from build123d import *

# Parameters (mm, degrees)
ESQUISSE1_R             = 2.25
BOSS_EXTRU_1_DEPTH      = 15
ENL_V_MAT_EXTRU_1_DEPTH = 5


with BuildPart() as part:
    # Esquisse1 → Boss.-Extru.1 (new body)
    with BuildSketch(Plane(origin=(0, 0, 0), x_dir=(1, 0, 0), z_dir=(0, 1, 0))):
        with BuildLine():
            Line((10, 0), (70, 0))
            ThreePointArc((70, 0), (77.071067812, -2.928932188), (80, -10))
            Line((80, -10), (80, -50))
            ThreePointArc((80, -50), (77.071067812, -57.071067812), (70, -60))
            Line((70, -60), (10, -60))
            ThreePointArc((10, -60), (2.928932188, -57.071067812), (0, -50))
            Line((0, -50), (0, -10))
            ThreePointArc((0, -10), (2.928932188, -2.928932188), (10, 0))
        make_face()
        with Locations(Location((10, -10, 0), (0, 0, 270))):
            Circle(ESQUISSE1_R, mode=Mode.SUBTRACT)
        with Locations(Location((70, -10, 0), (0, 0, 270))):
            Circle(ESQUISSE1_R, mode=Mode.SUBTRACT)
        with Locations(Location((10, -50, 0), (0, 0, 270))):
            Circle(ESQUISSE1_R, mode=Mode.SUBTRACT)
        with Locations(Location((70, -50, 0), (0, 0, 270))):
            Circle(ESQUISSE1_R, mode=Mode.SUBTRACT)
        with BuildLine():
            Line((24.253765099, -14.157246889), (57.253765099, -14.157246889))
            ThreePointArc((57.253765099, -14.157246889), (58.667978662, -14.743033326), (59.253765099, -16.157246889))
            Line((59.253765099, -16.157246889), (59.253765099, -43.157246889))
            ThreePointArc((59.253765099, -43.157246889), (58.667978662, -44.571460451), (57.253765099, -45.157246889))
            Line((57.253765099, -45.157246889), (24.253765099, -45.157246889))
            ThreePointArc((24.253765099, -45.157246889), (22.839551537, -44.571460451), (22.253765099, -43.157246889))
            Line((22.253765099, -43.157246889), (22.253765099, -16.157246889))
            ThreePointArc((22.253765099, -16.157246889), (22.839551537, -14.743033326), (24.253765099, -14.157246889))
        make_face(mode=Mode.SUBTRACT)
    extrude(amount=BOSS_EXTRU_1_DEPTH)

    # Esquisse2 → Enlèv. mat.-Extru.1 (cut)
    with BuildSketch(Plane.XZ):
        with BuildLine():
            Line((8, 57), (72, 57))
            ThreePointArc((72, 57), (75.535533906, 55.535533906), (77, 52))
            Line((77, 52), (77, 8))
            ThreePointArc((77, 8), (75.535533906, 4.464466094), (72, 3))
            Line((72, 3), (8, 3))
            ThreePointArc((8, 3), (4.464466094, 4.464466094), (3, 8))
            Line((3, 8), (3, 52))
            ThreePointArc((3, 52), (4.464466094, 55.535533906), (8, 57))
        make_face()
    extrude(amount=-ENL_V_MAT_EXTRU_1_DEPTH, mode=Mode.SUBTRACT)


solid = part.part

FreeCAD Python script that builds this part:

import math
import FreeCAD as App
import Part
import Sketcher

V = App.Vector
Q = App.Units.Quantity

doc = App.newDocument("Part")
body = doc.addObject("PartDesign::Body", "Body")

# Sketch on XZ plane
sketch1 = body.newObject("Sketcher::SketchObject", "Sketch")
sketch1.AttachmentSupport = (doc.getObject("XZ_Plane"), [""])
sketch1.MapMode = "FlatFace"
sketch1.addGeometry(Part.LineSegment(V(70, 0, 0), V(10, 0, 0)), False)
sketch1.addGeometry(Part.ArcOfCircle(Part.Circle(V(10, 10, 0), V(0, 0, 1), 10), math.radians(180), math.radians(270)), False)
sketch1.addGeometry(Part.LineSegment(V(0, 10, 0), V(0, 50, 0)), False)
sketch1.addGeometry(Part.ArcOfCircle(Part.Circle(V(10, 50, 0), V(0, 0, 1), 10), math.radians(90), math.radians(180)), False)
sketch1.addGeometry(Part.LineSegment(V(10, 60, 0), V(70, 60, 0)), False)
sketch1.addGeometry(Part.ArcOfCircle(Part.Circle(V(70, 50, 0), V(0, 0, 1), 10), math.radians(0), math.radians(90)), False)
sketch1.addGeometry(Part.LineSegment(V(80, 50, 0), V(80, 10, 0)), False)
sketch1.addGeometry(Part.ArcOfCircle(Part.Circle(V(70, 10, 0), V(0, 0, 1), 10), math.radians(-90), math.radians(0)), False)
sketch1.addGeometry(Part.Circle(V(70, 50, 0), V(0, 0, 1), 2.2), False)
sketch1.addGeometry(Part.Circle(V(10, 50, 0), V(0, 0, 1), 2.2), False)
sketch1.addGeometry(Part.LineSegment(V(24.3, 14.2, 0), V(57.3, 14.2, 0)), False)
sketch1.addGeometry(Part.ArcOfCircle(Part.Circle(V(57.3, 16.2, 0), V(0, 0, 1), 2), math.radians(-90), math.radians(0)), False)
sketch1.addGeometry(Part.LineSegment(V(59.3, 16.2, 0), V(59.3, 43.2, 0)), False)
sketch1.addGeometry(Part.ArcOfCircle(Part.Circle(V(57.3, 43.2, 0), V(0, 0, 1), 2), math.radians(0), math.radians(90)), False)
sketch1.addGeometry(Part.LineSegment(V(57.3, 45.2, 0), V(24.3, 45.2, 0)), False)
sketch1.addGeometry(Part.ArcOfCircle(Part.Circle(V(24.3, 43.2, 0), V(0, 0, 1), 2), math.radians(90), math.radians(180)), False)
sketch1.addGeometry(Part.LineSegment(V(22.3, 43.2, 0), V(22.3, 16.2, 0)), False)
sketch1.addGeometry(Part.ArcOfCircle(Part.Circle(V(24.3, 16.2, 0), V(0, 0, 1), 2), math.radians(180), math.radians(270)), False)
sketch1.addGeometry(Part.Circle(V(70, 10, 0), V(0, 0, 1), 2.2), False)
sketch1.addGeometry(Part.Circle(V(10, 10, 0), V(0, 0, 1), 2.2), False)
sketch1.addConstraint(Sketcher.Constraint("Tangent", 0, 2, 1, 2))
sketch1.addConstraint(Sketcher.Constraint("Tangent", 1, 1, 2, 1))
sketch1.addConstraint(Sketcher.Constraint("Tangent", 2, 2, 3, 2))
sketch1.addConstraint(Sketcher.Constraint("Tangent", 3, 1, 4, 1))
sketch1.addConstraint(Sketcher.Constraint("Tangent", 4, 2, 5, 2))
sketch1.addConstraint(Sketcher.Constraint("Tangent", 5, 1, 6, 1))
sketch1.addConstraint(Sketcher.Constraint("Tangent", 6, 2, 7, 2))
sketch1.addConstraint(Sketcher.Constraint("Tangent", 7, 1, 0, 1))
sketch1.addConstraint(Sketcher.Constraint("Tangent", 10, 2, 11, 1))
sketch1.addConstraint(Sketcher.Constraint("Tangent", 11, 2, 12, 1))
sketch1.addConstraint(Sketcher.Constraint("Tangent", 12, 2, 13, 1))
sketch1.addConstraint(Sketcher.Constraint("Tangent", 13, 2, 14, 1))
sketch1.addConstraint(Sketcher.Constraint("Tangent", 14, 2, 15, 1))
sketch1.addConstraint(Sketcher.Constraint("Tangent", 15, 2, 16, 1))
sketch1.addConstraint(Sketcher.Constraint("Tangent", 16, 2, 17, 1))
sketch1.addConstraint(Sketcher.Constraint("Tangent", 17, 2, 10, 1))
sketch1.addConstraint(Sketcher.Constraint("Horizontal", 0))
sketch1.addConstraint(Sketcher.Constraint("Vertical", 2))
sketch1.addConstraint(Sketcher.Constraint("Horizontal", 4))
sketch1.addConstraint(Sketcher.Constraint("Vertical", 6))
sketch1.addConstraint(Sketcher.Constraint("Horizontal", 10))
sketch1.addConstraint(Sketcher.Constraint("Vertical", 12))
sketch1.addConstraint(Sketcher.Constraint("Horizontal", 14))
sketch1.addConstraint(Sketcher.Constraint("Vertical", 16))
sketch1.addConstraint(Sketcher.Constraint("Coincident", 8, 3, 5, 3))
sketch1.addConstraint(Sketcher.Constraint("Coincident", 9, 3, 3, 3))
sketch1.addConstraint(Sketcher.Constraint("Coincident", 18, 3, 7, 3))
sketch1.addConstraint(Sketcher.Constraint("Coincident", 19, 3, 1, 3))
sketch1.addConstraint(Sketcher.Constraint("Equal", 1, 3))
sketch1.addConstraint(Sketcher.Constraint("Equal", 3, 5))
sketch1.addConstraint(Sketcher.Constraint("Equal", 5, 7))
sketch1.addConstraint(Sketcher.Constraint("Equal", 8, 9))
sketch1.addConstraint(Sketcher.Constraint("Equal", 11, 13))
sketch1.addConstraint(Sketcher.Constraint("Equal", 13, 15))
sketch1.addConstraint(Sketcher.Constraint("Equal", 15, 17))
sketch1.addConstraint(Sketcher.Constraint("Equal", 9, 18))
sketch1.addConstraint(Sketcher.Constraint("Equal", 18, 19))
sketch1.addConstraint(Sketcher.Constraint("PointOnObject", 0, 2, -1))
sketch1.addConstraint(Sketcher.Constraint("PointOnObject", 1, 1, -2))
sketch1.addConstraint(Sketcher.Constraint("Radius", 1, Q("10 mm")))
sketch1.addConstraint(Sketcher.Constraint("Radius", 11, Q("2 mm")))
sketch1.addConstraint(Sketcher.Constraint("Diameter", 8, Q("4.5 mm")))
sketch1.addConstraint(Sketcher.Constraint("DistanceX", 0, 2, 0, 1, Q("60 mm")))
sketch1.addConstraint(Sketcher.Constraint("DistanceX", 10, 1, 10, 2, Q("33 mm")))
sketch1.addConstraint(Sketcher.Constraint("DistanceY", 2, 1, 2, 2, Q("40 mm")))
sketch1.addConstraint(Sketcher.Constraint("DistanceY", 12, 1, 12, 2, Q("27 mm")))
sketch1.addConstraint(Sketcher.Constraint("DistanceX", -1, 1, 11, 3, Q("57.253765 mm")))
sketch1.addConstraint(Sketcher.Constraint("DistanceY", -1, 1, 11, 3, Q("16.157247 mm")))
pad1 = body.newObject("PartDesign::Pad", "Pad")
pad1.Profile = sketch1
pad1.Length = 15
pad1.Reversed = True

# Sketch on XZ plane
sketch2 = body.newObject("Sketcher::SketchObject", "Sketch001")
sketch2.AttachmentSupport = (doc.getObject("XZ_Plane"), [""])
sketch2.MapMode = "FlatFace"
sketch2.addGeometry(Part.LineSegment(V(72, 57, 0), V(8, 57, 0)), False)
sketch2.addGeometry(Part.ArcOfCircle(Part.Circle(V(8, 52, 0), V(0, 0, 1), 5), math.radians(90), math.radians(180)), False)
sketch2.addGeometry(Part.LineSegment(V(3, 52, 0), V(3, 8, 0)), False)
sketch2.addGeometry(Part.ArcOfCircle(Part.Circle(V(8, 8, 0), V(0, 0, 1), 5), math.radians(180), math.radians(270)), False)
sketch2.addGeometry(Part.LineSegment(V(8, 3, 0), V(72, 3, 0)), False)
sketch2.addGeometry(Part.ArcOfCircle(Part.Circle(V(72, 8, 0), V(0, 0, 1), 5), math.radians(-90), math.radians(0)), False)
sketch2.addGeometry(Part.LineSegment(V(77, 8, 0), V(77, 52, 0)), False)
sketch2.addGeometry(Part.ArcOfCircle(Part.Circle(V(72, 52, 0), V(0, 0, 1), 5), math.radians(0), math.radians(90)), False)
sketch2.addConstraint(Sketcher.Constraint("Tangent", 0, 2, 1, 1))
sketch2.addConstraint(Sketcher.Constraint("Tangent", 1, 2, 2, 1))
sketch2.addConstraint(Sketcher.Constraint("Tangent", 2, 2, 3, 1))
sketch2.addConstraint(Sketcher.Constraint("Tangent", 3, 2, 4, 1))
sketch2.addConstraint(Sketcher.Constraint("Tangent", 4, 2, 5, 1))
sketch2.addConstraint(Sketcher.Constraint("Tangent", 5, 2, 6, 1))
sketch2.addConstraint(Sketcher.Constraint("Tangent", 6, 2, 7, 1))
sketch2.addConstraint(Sketcher.Constraint("Tangent", 7, 2, 0, 1))
sketch2.addConstraint(Sketcher.Constraint("Horizontal", 0))
sketch2.addConstraint(Sketcher.Constraint("Vertical", 2))
sketch2.addConstraint(Sketcher.Constraint("Horizontal", 4))
sketch2.addConstraint(Sketcher.Constraint("Vertical", 6))
sketch2.addConstraint(Sketcher.Constraint("Equal", 1, 3))
sketch2.addConstraint(Sketcher.Constraint("Equal", 3, 5))
sketch2.addConstraint(Sketcher.Constraint("Equal", 5, 7))
sketch2.addConstraint(Sketcher.Constraint("Radius", 1, Q("5 mm")))
sketch2.addConstraint(Sketcher.Constraint("DistanceX", 0, 2, 0, 1, Q("64 mm")))
sketch2.addConstraint(Sketcher.Constraint("DistanceY", 2, 2, 2, 1, Q("44 mm")))
sketch2.addConstraint(Sketcher.Constraint("DistanceX", -1, 1, 1, 3, Q("8 mm")))
sketch2.addConstraint(Sketcher.Constraint("DistanceY", -1, 1, 1, 3, Q("52 mm")))
pocket1 = body.newObject("PartDesign::Pocket", "Pocket")
pocket1.Profile = sketch2
pocket1.Length = 5

doc.recompute()
